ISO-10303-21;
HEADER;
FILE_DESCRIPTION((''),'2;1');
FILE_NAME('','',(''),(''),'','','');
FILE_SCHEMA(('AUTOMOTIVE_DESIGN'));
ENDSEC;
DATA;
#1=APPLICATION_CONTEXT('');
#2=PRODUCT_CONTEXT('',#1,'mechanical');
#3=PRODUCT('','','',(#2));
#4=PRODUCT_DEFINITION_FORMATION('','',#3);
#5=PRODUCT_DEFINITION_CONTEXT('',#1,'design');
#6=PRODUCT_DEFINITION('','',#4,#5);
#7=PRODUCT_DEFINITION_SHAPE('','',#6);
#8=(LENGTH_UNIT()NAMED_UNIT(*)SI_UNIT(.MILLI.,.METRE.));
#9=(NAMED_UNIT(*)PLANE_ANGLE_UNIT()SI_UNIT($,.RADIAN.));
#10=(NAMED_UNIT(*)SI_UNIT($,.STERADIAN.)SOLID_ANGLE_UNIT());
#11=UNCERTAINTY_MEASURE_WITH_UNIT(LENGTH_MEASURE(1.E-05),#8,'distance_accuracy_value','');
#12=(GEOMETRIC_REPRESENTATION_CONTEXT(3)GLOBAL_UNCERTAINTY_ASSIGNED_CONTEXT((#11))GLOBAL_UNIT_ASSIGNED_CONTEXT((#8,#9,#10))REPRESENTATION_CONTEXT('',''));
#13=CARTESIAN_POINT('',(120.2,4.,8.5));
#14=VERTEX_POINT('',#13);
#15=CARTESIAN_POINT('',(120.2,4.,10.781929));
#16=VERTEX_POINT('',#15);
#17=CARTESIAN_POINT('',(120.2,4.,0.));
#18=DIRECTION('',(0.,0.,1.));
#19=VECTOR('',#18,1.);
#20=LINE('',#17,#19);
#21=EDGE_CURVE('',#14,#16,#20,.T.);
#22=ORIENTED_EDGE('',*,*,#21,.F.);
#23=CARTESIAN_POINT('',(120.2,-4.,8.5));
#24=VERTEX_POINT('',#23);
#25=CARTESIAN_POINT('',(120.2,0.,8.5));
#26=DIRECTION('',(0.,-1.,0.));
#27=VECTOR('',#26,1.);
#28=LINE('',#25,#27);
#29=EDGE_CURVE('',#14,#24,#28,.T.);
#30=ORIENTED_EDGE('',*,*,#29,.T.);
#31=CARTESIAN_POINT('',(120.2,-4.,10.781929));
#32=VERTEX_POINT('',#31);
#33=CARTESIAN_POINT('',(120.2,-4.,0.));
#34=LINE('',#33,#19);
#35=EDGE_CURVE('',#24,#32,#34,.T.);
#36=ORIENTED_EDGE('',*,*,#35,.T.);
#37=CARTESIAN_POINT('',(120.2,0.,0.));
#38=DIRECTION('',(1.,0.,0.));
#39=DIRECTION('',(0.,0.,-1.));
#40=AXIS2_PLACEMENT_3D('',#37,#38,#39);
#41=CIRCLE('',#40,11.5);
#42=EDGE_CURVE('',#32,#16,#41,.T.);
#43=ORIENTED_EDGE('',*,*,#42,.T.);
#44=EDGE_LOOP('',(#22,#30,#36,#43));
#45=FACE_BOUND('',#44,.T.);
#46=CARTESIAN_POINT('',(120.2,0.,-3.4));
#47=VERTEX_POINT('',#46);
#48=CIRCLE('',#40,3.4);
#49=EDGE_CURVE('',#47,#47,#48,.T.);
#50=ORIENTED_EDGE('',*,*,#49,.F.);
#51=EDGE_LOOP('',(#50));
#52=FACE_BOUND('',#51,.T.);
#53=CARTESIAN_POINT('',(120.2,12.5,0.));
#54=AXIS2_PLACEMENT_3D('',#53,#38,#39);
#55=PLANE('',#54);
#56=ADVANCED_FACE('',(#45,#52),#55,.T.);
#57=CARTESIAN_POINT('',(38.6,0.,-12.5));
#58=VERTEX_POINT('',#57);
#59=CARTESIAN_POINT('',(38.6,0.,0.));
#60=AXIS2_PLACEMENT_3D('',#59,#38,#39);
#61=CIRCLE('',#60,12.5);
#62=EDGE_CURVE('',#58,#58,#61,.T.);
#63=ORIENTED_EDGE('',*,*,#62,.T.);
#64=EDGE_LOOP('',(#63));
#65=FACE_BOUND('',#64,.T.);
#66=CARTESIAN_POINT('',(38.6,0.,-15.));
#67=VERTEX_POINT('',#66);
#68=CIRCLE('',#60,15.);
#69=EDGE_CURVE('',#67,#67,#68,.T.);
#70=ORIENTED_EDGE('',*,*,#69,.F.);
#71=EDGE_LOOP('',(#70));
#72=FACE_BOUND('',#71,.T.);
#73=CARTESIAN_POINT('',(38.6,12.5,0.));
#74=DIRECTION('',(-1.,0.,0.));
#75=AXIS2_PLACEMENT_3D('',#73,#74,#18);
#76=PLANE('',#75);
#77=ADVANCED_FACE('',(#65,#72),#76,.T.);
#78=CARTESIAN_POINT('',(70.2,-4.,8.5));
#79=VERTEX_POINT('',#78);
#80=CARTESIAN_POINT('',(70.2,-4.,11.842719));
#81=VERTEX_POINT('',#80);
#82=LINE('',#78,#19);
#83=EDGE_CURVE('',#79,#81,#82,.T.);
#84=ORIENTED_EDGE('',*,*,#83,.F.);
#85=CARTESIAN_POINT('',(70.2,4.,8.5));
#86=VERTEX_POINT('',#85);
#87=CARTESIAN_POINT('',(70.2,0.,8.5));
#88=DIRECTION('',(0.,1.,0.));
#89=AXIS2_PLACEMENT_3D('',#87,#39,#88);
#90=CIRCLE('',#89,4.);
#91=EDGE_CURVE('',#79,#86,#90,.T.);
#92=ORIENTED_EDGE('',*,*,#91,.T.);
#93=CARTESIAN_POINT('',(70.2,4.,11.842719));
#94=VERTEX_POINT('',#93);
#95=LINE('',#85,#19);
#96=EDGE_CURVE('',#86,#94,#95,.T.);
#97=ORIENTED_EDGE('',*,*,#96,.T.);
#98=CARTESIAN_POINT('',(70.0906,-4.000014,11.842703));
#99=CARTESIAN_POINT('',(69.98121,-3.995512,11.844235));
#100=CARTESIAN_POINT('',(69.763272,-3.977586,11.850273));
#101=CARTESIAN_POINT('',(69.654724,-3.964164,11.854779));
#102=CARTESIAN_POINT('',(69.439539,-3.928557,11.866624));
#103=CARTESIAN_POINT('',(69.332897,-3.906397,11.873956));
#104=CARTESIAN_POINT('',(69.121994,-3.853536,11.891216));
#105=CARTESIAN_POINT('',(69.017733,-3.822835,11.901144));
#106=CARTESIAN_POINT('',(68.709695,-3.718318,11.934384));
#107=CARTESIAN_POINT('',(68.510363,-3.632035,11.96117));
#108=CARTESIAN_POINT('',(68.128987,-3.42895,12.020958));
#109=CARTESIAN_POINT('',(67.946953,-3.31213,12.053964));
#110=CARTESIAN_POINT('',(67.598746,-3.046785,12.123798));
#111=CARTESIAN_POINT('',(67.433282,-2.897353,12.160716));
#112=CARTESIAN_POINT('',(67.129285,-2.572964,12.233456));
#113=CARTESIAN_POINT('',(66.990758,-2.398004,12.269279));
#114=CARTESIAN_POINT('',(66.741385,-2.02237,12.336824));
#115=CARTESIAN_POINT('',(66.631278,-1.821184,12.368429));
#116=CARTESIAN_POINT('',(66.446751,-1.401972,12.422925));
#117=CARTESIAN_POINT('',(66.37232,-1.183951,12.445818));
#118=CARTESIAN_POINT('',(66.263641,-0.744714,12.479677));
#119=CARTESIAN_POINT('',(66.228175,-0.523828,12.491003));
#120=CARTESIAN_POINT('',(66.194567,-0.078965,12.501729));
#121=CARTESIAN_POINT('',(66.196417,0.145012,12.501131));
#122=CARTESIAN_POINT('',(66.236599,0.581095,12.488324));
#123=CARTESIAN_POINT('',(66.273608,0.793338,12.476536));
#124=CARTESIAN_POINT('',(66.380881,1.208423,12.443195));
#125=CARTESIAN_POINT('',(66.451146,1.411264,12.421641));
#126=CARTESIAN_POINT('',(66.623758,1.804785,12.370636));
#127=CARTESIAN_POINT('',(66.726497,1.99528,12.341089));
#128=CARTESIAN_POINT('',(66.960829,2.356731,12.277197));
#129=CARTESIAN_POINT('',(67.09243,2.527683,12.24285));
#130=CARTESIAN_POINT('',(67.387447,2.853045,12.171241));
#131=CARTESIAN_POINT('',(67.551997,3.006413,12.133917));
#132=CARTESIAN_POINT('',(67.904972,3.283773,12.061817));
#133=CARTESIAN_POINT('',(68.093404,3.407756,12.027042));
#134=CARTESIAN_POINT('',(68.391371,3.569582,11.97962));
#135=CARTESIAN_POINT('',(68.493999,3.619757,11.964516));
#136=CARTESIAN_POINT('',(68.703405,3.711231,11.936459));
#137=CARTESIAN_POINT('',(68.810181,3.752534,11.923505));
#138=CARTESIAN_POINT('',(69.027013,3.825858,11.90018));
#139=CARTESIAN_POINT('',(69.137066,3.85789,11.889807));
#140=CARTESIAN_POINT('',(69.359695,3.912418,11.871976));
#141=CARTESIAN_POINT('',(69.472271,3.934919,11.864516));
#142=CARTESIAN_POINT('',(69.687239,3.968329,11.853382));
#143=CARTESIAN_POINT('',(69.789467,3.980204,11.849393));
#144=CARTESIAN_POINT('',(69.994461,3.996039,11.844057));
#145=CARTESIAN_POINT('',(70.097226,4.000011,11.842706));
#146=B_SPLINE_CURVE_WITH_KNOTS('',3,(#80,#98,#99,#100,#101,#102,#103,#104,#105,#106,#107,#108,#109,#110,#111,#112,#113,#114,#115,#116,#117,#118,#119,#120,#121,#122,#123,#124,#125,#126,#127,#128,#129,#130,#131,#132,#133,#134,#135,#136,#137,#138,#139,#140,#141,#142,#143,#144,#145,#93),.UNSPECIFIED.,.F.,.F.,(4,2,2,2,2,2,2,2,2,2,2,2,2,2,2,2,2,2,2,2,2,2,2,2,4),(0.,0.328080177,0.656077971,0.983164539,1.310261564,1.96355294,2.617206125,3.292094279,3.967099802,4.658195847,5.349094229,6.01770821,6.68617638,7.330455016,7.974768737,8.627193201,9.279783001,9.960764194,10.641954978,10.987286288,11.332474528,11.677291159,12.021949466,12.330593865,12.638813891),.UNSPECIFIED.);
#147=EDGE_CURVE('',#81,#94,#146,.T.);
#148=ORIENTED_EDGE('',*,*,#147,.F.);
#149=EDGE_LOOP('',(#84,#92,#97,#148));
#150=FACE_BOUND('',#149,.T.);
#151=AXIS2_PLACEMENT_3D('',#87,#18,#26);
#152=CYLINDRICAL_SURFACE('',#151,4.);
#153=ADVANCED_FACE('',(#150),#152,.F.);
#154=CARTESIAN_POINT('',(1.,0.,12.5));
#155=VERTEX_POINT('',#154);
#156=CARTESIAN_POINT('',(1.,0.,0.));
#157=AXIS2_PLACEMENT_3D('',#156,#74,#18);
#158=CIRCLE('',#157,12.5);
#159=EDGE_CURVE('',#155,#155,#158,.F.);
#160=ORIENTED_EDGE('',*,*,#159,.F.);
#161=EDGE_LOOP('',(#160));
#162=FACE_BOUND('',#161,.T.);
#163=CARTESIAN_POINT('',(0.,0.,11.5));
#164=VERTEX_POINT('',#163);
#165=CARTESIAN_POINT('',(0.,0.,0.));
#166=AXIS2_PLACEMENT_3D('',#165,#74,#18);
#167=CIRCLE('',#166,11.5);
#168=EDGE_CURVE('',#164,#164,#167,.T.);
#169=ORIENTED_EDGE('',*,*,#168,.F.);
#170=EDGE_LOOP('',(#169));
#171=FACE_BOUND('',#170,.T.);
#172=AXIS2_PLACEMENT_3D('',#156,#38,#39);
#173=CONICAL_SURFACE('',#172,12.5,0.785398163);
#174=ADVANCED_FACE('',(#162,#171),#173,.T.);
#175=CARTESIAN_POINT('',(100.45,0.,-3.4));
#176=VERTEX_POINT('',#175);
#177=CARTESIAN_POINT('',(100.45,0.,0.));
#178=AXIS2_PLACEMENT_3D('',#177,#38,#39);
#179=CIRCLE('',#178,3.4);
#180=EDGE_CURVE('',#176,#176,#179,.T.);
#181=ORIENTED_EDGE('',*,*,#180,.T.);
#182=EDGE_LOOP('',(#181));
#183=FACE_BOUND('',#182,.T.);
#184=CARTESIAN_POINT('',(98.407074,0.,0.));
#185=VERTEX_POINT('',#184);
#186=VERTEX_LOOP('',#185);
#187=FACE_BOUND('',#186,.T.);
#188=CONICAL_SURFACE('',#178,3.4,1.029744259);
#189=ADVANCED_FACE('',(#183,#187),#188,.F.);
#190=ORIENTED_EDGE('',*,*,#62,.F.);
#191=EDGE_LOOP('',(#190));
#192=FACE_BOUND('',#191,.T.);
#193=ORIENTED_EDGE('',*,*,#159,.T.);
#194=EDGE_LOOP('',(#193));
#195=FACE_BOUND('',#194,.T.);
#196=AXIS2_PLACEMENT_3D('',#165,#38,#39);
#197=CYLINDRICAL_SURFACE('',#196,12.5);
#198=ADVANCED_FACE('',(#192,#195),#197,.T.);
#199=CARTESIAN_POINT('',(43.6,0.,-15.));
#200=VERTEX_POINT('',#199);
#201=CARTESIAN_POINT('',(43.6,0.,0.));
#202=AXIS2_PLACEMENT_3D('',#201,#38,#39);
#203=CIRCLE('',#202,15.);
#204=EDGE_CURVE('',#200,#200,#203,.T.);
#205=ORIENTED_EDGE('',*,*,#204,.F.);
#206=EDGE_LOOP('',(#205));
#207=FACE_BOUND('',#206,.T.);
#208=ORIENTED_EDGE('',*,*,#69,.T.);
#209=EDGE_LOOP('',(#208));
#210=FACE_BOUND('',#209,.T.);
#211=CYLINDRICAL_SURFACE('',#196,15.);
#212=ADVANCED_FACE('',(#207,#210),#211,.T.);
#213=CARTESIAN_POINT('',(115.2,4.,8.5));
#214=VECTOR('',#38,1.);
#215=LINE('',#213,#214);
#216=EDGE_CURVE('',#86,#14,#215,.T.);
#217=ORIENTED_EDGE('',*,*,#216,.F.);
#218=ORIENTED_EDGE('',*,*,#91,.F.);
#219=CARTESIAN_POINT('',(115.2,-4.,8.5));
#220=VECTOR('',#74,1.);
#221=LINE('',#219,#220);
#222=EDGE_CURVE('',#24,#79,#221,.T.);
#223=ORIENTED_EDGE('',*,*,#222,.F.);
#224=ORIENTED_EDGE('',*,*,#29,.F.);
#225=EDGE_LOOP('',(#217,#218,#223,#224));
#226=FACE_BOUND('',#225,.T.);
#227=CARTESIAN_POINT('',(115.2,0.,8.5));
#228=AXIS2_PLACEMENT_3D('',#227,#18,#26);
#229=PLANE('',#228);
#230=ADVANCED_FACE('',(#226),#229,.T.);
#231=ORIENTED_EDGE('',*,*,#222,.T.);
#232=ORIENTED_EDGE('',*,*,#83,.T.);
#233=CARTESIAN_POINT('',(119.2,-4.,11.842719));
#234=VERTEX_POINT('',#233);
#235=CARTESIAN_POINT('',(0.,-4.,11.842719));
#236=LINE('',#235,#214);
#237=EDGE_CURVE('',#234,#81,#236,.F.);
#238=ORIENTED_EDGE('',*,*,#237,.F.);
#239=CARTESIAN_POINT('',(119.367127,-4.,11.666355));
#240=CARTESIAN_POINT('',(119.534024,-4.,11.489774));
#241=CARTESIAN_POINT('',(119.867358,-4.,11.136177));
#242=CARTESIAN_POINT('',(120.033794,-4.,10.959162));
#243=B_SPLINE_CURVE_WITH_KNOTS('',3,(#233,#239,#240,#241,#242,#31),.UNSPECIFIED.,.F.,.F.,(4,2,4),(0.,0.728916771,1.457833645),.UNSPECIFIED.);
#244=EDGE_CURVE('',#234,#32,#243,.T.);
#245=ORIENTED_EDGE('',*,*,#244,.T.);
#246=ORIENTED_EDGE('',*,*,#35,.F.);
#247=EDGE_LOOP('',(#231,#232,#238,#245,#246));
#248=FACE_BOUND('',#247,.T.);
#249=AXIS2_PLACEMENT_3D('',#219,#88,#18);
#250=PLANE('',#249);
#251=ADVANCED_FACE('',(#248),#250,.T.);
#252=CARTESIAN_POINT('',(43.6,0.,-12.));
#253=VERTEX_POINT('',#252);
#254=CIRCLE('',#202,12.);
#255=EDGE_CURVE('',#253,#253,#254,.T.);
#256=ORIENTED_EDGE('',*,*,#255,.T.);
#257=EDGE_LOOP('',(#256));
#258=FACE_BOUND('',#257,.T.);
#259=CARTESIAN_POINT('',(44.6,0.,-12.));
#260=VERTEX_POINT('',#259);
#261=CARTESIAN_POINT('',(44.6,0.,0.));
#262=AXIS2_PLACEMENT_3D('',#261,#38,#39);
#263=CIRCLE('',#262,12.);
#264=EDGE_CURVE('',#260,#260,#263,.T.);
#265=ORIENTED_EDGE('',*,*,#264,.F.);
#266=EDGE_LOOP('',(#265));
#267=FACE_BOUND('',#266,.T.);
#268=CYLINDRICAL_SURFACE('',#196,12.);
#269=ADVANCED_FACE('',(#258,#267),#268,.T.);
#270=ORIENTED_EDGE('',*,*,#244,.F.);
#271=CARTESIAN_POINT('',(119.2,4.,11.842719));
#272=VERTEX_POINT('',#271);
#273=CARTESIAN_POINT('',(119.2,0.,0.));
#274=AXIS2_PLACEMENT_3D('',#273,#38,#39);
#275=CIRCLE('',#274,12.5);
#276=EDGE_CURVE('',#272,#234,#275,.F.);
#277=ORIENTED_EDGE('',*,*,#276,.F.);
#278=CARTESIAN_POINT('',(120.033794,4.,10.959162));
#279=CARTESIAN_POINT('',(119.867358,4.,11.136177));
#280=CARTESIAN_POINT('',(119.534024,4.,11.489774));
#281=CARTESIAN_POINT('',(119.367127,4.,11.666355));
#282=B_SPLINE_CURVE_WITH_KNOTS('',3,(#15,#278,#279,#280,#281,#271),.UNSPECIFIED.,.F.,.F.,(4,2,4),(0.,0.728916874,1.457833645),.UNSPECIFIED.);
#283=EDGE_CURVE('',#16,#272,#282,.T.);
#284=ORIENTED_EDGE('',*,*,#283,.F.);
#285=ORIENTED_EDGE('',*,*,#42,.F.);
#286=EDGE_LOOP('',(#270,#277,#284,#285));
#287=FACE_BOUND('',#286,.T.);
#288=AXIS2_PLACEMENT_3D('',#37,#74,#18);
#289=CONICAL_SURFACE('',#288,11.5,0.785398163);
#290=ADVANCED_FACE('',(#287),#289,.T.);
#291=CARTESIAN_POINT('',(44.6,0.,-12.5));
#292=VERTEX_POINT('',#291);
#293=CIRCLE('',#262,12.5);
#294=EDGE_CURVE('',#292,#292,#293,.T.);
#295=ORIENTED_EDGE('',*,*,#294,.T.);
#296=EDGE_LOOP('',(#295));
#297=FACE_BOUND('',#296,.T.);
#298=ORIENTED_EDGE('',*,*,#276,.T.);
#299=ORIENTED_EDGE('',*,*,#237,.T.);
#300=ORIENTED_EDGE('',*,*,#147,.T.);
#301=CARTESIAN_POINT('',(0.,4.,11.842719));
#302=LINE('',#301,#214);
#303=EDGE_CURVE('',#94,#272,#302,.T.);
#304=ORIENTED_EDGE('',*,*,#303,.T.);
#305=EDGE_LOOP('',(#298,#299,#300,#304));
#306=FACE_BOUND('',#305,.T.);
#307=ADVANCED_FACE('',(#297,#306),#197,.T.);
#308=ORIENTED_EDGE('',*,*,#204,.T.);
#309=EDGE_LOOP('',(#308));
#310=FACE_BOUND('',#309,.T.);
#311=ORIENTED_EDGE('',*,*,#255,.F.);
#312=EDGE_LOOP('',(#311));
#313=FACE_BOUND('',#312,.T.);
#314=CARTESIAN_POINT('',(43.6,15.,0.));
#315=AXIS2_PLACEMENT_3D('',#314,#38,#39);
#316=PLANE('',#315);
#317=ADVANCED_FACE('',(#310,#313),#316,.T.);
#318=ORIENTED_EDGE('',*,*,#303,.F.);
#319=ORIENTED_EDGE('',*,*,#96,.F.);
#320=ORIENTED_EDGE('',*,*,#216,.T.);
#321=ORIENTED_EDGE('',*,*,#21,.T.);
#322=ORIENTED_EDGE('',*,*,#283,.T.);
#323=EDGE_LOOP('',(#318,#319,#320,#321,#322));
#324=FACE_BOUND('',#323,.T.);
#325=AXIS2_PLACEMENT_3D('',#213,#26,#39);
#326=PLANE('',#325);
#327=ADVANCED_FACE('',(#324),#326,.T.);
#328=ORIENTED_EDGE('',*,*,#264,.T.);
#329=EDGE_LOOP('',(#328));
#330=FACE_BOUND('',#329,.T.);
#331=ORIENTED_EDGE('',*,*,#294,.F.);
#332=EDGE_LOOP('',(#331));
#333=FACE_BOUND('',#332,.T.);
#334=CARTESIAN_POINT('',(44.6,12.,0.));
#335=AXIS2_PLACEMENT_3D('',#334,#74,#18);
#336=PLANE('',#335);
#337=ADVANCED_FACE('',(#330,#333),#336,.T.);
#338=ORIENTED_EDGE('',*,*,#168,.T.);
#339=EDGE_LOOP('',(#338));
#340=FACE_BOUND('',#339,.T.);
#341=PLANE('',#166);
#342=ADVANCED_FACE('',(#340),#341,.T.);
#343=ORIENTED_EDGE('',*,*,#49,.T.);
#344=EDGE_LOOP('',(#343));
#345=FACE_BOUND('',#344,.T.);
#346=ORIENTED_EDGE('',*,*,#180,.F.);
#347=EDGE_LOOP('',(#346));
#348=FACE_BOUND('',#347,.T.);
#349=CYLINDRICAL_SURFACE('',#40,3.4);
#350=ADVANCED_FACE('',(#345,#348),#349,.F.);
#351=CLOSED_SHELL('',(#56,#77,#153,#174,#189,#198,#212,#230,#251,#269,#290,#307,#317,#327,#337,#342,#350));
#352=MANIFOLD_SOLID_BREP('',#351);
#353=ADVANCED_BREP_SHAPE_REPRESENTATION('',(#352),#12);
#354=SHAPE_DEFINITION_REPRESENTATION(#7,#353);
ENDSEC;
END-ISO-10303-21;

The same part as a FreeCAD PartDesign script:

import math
import FreeCAD as App
import Part
import Sketcher

V = App.Vector
Q = App.Units.Quantity


def edges_at(feature, points):
    """Names of the edges that pass closest to the given points."""
    edges = feature.Shape.Edges
    near = lambda p: min(range(len(edges)), key=lambda i: edges[i].distToShape(Part.Vertex(*p))[0])
    return sorted({f"Edge{near(p) + 1}" for p in points})

doc = App.newDocument("Part")
body = doc.addObject("PartDesign::Body", "Body")

sketch1 = doc.addObject("Sketcher::SketchObject", "Sketch")
body.addObject(sketch1)
sketch1.AttachmentSupport = (doc.XY_Plane, [""])
sketch1.MapMode = "FlatFace"
sketch1.addGeometry(Part.LineSegment(V(0, 12.5, 0), V(0, 0, 0)), False)
sketch1.addGeometry(Part.LineSegment(V(0, 0, 0), V(120.2, 0, 0)), False)
sketch1.addGeometry(Part.LineSegment(V(120.2, 0, 0), V(120.2, 12.5, 0)), False)
sketch1.addGeometry(Part.LineSegment(V(120.2, 12.5, 0), V(44.6, 12.5, 0)), False)
sketch1.addGeometry(Part.LineSegment(V(44.6, 12.5, 0), V(44.6, 12, 0)), False)
sketch1.addGeometry(Part.LineSegment(V(44.6, 12, 0), V(43.6, 12, 0)), False)
sketch1.addGeometry(Part.LineSegment(V(43.6, 12, 0), V(43.6, 15, 0)), False)
sketch1.addGeometry(Part.LineSegment(V(43.6, 15, 0), V(38.6, 15, 0)), False)
sketch1.addGeometry(Part.LineSegment(V(38.6, 15, 0), V(38.6, 12.5, 0)), False)
sketch1.addGeometry(Part.LineSegment(V(38.6, 12.5, 0), V(0, 12.5, 0)), False)
sketch1.addConstraint(Sketcher.Constraint("Coincident", 0, 2, 1, 1))
sketch1.addConstraint(Sketcher.Constraint("Coincident", 1, 2, 2, 1))
sketch1.addConstraint(Sketcher.Constraint("Coincident", 2, 2, 3, 1))
sketch1.addConstraint(Sketcher.Constraint("Coincident", 3, 2, 4, 1))
sketch1.addConstraint(Sketcher.Constraint("Coincident", 4, 2, 5, 1))
sketch1.addConstraint(Sketcher.Constraint("Coincident", 5, 2, 6, 1))
sketch1.addConstraint(Sketcher.Constraint("Coincident", 6, 2, 7, 1))
sketch1.addConstraint(Sketcher.Constraint("Coincident", 7, 2, 8, 1))
sketch1.addConstraint(Sketcher.Constraint("Coincident", 8, 2, 9, 1))
sketch1.addConstraint(Sketcher.Constraint("Coincident", 9, 2, 0, 1))
sketch1.addConstraint(Sketcher.Constraint("Vertical", 0))
sketch1.addConstraint(Sketcher.Constraint("Horizontal", 1))
sketch1.addConstraint(Sketcher.Constraint("Vertical", 2))
sketch1.addConstraint(Sketcher.Constraint("Horizontal", 3))
sketch1.addConstraint(Sketcher.Constraint("Vertical", 4))
sketch1.addConstraint(Sketcher.Constraint("Horizontal", 5))
sketch1.addConstraint(Sketcher.Constraint("Vertical", 6))
sketch1.addConstraint(Sketcher.Constraint("Horizontal", 7))
sketch1.addConstraint(Sketcher.Constraint("Vertical", 8))
sketch1.addConstraint(Sketcher.Constraint("Horizontal", 9))
sketch1.addConstraint(Sketcher.Constraint("Coincident", 0, 2, -1, 1))
sketch1.addConstraint(Sketcher.Constraint("Horizontal", 3, 2, 8, 2))
sketch1.addConstraint(Sketcher.Constraint("DistanceX", 5, 2, 5, 1, Q("1 mm")))
sketch1.addConstraint(Sketcher.Constraint("DistanceX", 7, 2, 7, 1, Q("5 mm")))
sketch1.addConstraint(Sketcher.Constraint("DistanceY", 6, 1, 6, 2, Q("3 mm")))
sketch1.addConstraint(Sketcher.Constraint("DistanceX", 1, 1, 1, 2, Q("120.2 mm")))
sketch1.addConstraint(Sketcher.Constraint("DistanceX", 3, 2, 3, 1, Q("75.6 mm")))
sketch1.addConstraint(Sketcher.Constraint("DistanceY", 0, 2, 0, 1, Q("12.5 mm")))
sketch1.addConstraint(Sketcher.Constraint("DistanceY", 4, 2, 4, 1, Q("0.5 mm")))
revolution = doc.addObject("PartDesign::Revolution", "Revolution")
body.addObject(revolution)
revolution.Profile = sketch1
revolution.ReferenceAxis = (sketch1, ["H_Axis"])
revolution.Angle = 360
doc.recompute()

chamfer = doc.addObject("PartDesign::Chamfer", "Chamfer")
body.addObject(chamfer)
chamfer.Base = (revolution, edges_at(revolution, [(0, 0, 12.5)]))
chamfer.Size = 1

sketch2 = doc.addObject("Sketcher::SketchObject", "Sketch001")
body.addObject(sketch2)
sketch2.AttachmentSupport = (doc.XY_Plane, [""])
sketch2.MapMode = "FlatFace"
sketch2.AttachmentOffset = App.Placement(V(0, 0, 12.5), App.Rotation())
sketch2.addGeometry(Part.LineSegment(V(115.2, -4, 0), V(70.2, -4, 0)), False)
sketch2.addGeometry(Part.ArcOfCircle(Part.Circle(V(70.2, 0, 0), V(0, 0, 1), 4), math.radians(90), math.radians(270)), False)
sketch2.addGeometry(Part.LineSegment(V(70.2, 4, 0), V(115.2, 4, 0)), False)
sketch2.addGeometry(Part.ArcOfCircle(Part.Circle(V(115.2, 0, 0), V(0, 0, 1), 4), math.radians(-90), math.radians(90)), False)
sketch2.addConstraint(Sketcher.Constraint("Tangent", 0, 2, 1, 2))
sketch2.addConstraint(Sketcher.Constraint("Tangent", 1, 1, 2, 1))
sketch2.addConstraint(Sketcher.Constraint("Tangent", 2, 2, 3, 2))
sketch2.addConstraint(Sketcher.Constraint("Tangent", 3, 1, 0, 1))
sketch2.addConstraint(Sketcher.Constraint("Horizontal", 0))
sketch2.addConstraint(Sketcher.Constraint("Horizontal", 2))
sketch2.addConstraint(Sketcher.Constraint("PointOnObject", 1, 3, -1))
sketch2.addConstraint(Sketcher.Constraint("Radius", 1, Q("4 mm")))
sketch2.addConstraint(Sketcher.Constraint("DistanceX", 0, 2, 0, 1, Q("45 mm")))
sketch2.addConstraint(Sketcher.Constraint("DistanceX", -1, 1, 1, 3, Q("70.2 mm")))
pocket1 = doc.addObject("PartDesign::Pocket", "Pocket")
body.addObject(pocket1)
pocket1.Profile = sketch2
pocket1.Length = 4

sketch3 = doc.addObject("Sketcher::SketchObject", "Sketch002")
body.addObject(sketch3)
sketch3.AttachmentSupport = (doc.YZ_Plane, [""])
sketch3.MapMode = "FlatFace"
sketch3.AttachmentOffset = App.Placement(V(0, 0, 120.2), App.Rotation())
sketch3.addGeometry(Part.LineSegment(V(-4, 8.5, 0), V(4, 8.5, 0)), False)
sketch3.addGeometry(Part.LineSegment(V(4, 8.5, 0), V(4, 11.8, 0)), False)
sketch3.addGeometry(Part.ArcOfCircle(Part.Circle(V(0, 0, 0), V(0, 0, 1), 12.5), math.radians(71), math.radians(109)), False)
sketch3.addGeometry(Part.LineSegment(V(-4, 11.8, 0), V(-4, 8.5, 0)), False)
sketch3.addConstraint(Sketcher.Constraint("Coincident", 0, 2, 1, 1))
sketch3.addConstraint(Sketcher.Constraint("Coincident", 1, 2, 2, 1))
sketch3.addConstraint(Sketcher.Constraint("Coincident", 2, 2, 3, 1))
sketch3.addConstraint(Sketcher.Constraint("Coincident", 3, 2, 0, 1))
sketch3.addConstraint(Sketcher.Constraint("Horizontal", 0))
sketch3.addConstraint(Sketcher.Constraint("Vertical", 1))
sketch3.addConstraint(Sketcher.Constraint("Vertical", 3))
sketch3.addConstraint(Sketcher.Constraint("Coincident", 2, 3, -1, 1))
sketch3.addConstraint(Sketcher.Constraint("Horizontal", 1, 2, 2, 2))
sketch3.addConstraint(Sketcher.Constraint("Radius", 2, Q("12.5 mm")))
sketch3.addConstraint(Sketcher.Constraint("DistanceX", 0, 1, 0, 2, Q("8 mm")))
sketch3.addConstraint(Sketcher.Constraint("DistanceY", -1, 1, 0, 2, Q("8.5 mm")))
pocket2 = doc.addObject("PartDesign::Pocket", "Pocket001")
body.addObject(pocket2)
pocket2.Profile = sketch3
pocket2.Length = 10

sketch4 = doc.addObject("Sketcher::SketchObject", "Sketch003")
body.addObject(sketch4)
sketch4.AttachmentSupport = (doc.YZ_Plane, [""])
sketch4.MapMode = "FlatFace"
sketch4.AttachmentOffset = App.Placement(V(0, 0, 120.2), App.Rotation())
sketch4.addGeometry(Part.Circle(V(0, 0, 0), V(0, 0, 1), 3.4), False)
sketch4.addConstraint(Sketcher.Constraint("Coincident", 0, 3, -1, 1))
sketch4.addConstraint(Sketcher.Constraint("Diameter", 0, Q("6.8 mm")))
doc.recompute()
hole = doc.addObject("PartDesign::Hole", "Hole")
body.addObject(hole)
hole.Profile = sketch4
hole.ThreadType = "None"
hole.Diameter = 6.8
hole.DepthType = "Dimension"
hole.Depth = 19.75
hole.DrillPoint = "Angled"
hole.DrillPointAngle = 118
doc.recompute()

chamfer2 = doc.addObject("PartDesign::Chamfer", "Chamfer001")
body.addObject(chamfer2)
chamfer2.Base = (hole, edges_at(hole, [(120.2, 12.335, -2.027)]))
chamfer2.Size = 1

doc.recompute()
